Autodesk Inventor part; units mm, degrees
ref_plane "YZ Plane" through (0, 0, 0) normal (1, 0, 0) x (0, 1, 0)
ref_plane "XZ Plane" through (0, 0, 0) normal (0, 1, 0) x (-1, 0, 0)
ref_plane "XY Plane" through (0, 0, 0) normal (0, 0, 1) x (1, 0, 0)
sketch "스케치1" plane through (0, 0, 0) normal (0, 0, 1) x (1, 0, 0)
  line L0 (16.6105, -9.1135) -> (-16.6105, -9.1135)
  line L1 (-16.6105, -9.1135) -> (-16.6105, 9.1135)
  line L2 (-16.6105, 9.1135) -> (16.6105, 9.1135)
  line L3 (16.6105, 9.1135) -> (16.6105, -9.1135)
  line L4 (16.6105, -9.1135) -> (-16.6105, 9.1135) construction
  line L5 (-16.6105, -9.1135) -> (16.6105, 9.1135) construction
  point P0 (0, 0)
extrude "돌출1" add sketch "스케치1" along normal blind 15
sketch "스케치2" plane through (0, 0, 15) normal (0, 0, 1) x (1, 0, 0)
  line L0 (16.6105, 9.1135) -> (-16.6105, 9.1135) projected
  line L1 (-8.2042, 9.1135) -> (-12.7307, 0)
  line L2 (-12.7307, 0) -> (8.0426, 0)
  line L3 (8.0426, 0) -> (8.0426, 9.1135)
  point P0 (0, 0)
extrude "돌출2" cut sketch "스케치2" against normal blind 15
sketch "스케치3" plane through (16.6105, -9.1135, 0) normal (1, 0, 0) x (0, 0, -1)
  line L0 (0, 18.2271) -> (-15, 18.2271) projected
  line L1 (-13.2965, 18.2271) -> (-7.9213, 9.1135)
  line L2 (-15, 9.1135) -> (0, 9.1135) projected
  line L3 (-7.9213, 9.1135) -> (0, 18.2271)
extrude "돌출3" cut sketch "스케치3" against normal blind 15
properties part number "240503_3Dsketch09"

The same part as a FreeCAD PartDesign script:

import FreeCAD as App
import Part
import Sketcher
from FreeCAD import Vector
Q = App.Units.Quantity


def add_polygon(sketch, points):
    """Adds a closed chain of lines whose ends are joined by coincident constraints."""
    first, n = sketch.GeometryCount, len(points)
    for a, b in zip(points, points[1:] + points[:1]):
        sketch.addGeometry(Part.LineSegment(App.Vector(*a, 0), App.Vector(*b, 0)), False)
    for i in range(n):
        sketch.addConstraint(Sketcher.Constraint("Coincident", first + i, 2, first + (i + 1) % n, 1))

doc = App.newDocument("Part")
params = doc.addObject("Spreadsheet::Sheet", "Params")
for row, (alias, value) in enumerate([
    ("pad1_length", "15 mm"),
    ("pocket1_length", "15 mm"),
    ("pocket2_length", "15 mm"),
], start=1):
    params.set(f"A{row}", alias)
    params.set(f"B{row}", "=" + value)
    params.setAlias(f"B{row}", alias)

body = doc.addObject("PartDesign::Body", "Body")

# Sketch on XY plane
sketch1 = body.newObject("Sketcher::SketchObject", "Sketch")
sketch1.AttachmentSupport = (doc.getObject("XY_Plane"), [""])
sketch1.MapMode = "FlatFace"
add_polygon(sketch1, [(-16.6105, -9.1135), (16.6105, -9.1135), (16.6105, 9.1135), (-16.6105, 9.1135)])  # lines 0-3
sketch1.addConstraint(Sketcher.Constraint("Horizontal", 0))
sketch1.addConstraint(Sketcher.Constraint("Vertical", 1))
sketch1.addConstraint(Sketcher.Constraint("Horizontal", 2))
sketch1.addConstraint(Sketcher.Constraint("Vertical", 3))
sketch1.addConstraint(Sketcher.Constraint("Symmetric", 0, 2, 2, 2, -1, 1))
sketch1.addConstraint(Sketcher.Constraint("DistanceX", 0, 1, 0, 2, Q("33.221 mm")))
sketch1.addConstraint(Sketcher.Constraint("DistanceY", 1, 1, 1, 2, Q("18.227 mm")))
pad1 = body.newObject("PartDesign::Pad", "Pad")
pad1.Profile = sketch1
pad1.setExpression("Length", "Params.pad1_length")

# Sketch on XY plane
sketch2 = body.newObject("Sketcher::SketchObject", "Sketch001")
sketch2.AttachmentSupport = (doc.getObject("XY_Plane"), [""])
sketch2.MapMode = "FlatFace"
sketch2.AttachmentOffset = App.Placement(Vector(0, 0, 15), App.Rotation())
add_polygon(sketch2, [(8.0426, 0), (8.0426, 9.1135), (-8.2042, 9.1135), (-12.7307, 0)])  # lines 0-3
sketch2.addConstraint(Sketcher.Constraint("Vertical", 0))
sketch2.addConstraint(Sketcher.Constraint("Horizontal", 1))
sketch2.addConstraint(Sketcher.Constraint("Horizontal", 3))
sketch2.addConstraint(Sketcher.Constraint("PointOnObject", 2, 2, -1))
sketch2.addConstraint(Sketcher.Constraint("DistanceX", 1, 2, 1, 1, Q("16.2468 mm")))
sketch2.addConstraint(Sketcher.Constraint("DistanceX", 3, 1, 3, 2, Q("20.7733 mm")))
sketch2.addConstraint(Sketcher.Constraint("DistanceY", 0, 1, 0, 2, Q("9.1135 mm")))
sketch2.addConstraint(Sketcher.Constraint("DistanceX", -1, 1, 0, 2, Q("8.0426 mm")))
pocket1 = body.newObject("PartDesign::Pocket", "Pocket")
pocket1.Profile = sketch2
pocket1.setExpression("Length", "Params.pocket1_length")

# Sketch on YZ plane
sketch3 = body.newObject("Sketcher::SketchObject", "Sketch002")
sketch3.AttachmentSupport = (doc.getObject("YZ_Plane"), [""])
sketch3.MapMode = "FlatFace"
sketch3.AttachmentOffset = App.Placement(Vector(0, 0, 16.6105), App.Rotation())
add_polygon(sketch3, [(0, 7.9213), (9.1136, 0), (9.1136, 13.2965)])  # lines 0-2
sketch3.addConstraint(Sketcher.Constraint("Vertical", 1))
sketch3.addConstraint(Sketcher.Constraint("PointOnObject", 0, 2, -1))
sketch3.addConstraint(Sketcher.Constraint("PointOnObject", 2, 2, -2))
sketch3.addConstraint(Sketcher.Constraint("Distance", 0, Q("12.075 mm")))
sketch3.addConstraint(Sketcher.Constraint("DistanceY", 1, 1, 1, 2, Q("13.2965 mm")))
sketch3.addConstraint(Sketcher.Constraint("Distance", 2, Q("10.5807 mm")))
pocket2 = body.newObject("PartDesign::Pocket", "Pocket001")
pocket2.Profile = sketch3
pocket2.setExpression("Length", "Params.pocket2_length")

doc.recompute()
